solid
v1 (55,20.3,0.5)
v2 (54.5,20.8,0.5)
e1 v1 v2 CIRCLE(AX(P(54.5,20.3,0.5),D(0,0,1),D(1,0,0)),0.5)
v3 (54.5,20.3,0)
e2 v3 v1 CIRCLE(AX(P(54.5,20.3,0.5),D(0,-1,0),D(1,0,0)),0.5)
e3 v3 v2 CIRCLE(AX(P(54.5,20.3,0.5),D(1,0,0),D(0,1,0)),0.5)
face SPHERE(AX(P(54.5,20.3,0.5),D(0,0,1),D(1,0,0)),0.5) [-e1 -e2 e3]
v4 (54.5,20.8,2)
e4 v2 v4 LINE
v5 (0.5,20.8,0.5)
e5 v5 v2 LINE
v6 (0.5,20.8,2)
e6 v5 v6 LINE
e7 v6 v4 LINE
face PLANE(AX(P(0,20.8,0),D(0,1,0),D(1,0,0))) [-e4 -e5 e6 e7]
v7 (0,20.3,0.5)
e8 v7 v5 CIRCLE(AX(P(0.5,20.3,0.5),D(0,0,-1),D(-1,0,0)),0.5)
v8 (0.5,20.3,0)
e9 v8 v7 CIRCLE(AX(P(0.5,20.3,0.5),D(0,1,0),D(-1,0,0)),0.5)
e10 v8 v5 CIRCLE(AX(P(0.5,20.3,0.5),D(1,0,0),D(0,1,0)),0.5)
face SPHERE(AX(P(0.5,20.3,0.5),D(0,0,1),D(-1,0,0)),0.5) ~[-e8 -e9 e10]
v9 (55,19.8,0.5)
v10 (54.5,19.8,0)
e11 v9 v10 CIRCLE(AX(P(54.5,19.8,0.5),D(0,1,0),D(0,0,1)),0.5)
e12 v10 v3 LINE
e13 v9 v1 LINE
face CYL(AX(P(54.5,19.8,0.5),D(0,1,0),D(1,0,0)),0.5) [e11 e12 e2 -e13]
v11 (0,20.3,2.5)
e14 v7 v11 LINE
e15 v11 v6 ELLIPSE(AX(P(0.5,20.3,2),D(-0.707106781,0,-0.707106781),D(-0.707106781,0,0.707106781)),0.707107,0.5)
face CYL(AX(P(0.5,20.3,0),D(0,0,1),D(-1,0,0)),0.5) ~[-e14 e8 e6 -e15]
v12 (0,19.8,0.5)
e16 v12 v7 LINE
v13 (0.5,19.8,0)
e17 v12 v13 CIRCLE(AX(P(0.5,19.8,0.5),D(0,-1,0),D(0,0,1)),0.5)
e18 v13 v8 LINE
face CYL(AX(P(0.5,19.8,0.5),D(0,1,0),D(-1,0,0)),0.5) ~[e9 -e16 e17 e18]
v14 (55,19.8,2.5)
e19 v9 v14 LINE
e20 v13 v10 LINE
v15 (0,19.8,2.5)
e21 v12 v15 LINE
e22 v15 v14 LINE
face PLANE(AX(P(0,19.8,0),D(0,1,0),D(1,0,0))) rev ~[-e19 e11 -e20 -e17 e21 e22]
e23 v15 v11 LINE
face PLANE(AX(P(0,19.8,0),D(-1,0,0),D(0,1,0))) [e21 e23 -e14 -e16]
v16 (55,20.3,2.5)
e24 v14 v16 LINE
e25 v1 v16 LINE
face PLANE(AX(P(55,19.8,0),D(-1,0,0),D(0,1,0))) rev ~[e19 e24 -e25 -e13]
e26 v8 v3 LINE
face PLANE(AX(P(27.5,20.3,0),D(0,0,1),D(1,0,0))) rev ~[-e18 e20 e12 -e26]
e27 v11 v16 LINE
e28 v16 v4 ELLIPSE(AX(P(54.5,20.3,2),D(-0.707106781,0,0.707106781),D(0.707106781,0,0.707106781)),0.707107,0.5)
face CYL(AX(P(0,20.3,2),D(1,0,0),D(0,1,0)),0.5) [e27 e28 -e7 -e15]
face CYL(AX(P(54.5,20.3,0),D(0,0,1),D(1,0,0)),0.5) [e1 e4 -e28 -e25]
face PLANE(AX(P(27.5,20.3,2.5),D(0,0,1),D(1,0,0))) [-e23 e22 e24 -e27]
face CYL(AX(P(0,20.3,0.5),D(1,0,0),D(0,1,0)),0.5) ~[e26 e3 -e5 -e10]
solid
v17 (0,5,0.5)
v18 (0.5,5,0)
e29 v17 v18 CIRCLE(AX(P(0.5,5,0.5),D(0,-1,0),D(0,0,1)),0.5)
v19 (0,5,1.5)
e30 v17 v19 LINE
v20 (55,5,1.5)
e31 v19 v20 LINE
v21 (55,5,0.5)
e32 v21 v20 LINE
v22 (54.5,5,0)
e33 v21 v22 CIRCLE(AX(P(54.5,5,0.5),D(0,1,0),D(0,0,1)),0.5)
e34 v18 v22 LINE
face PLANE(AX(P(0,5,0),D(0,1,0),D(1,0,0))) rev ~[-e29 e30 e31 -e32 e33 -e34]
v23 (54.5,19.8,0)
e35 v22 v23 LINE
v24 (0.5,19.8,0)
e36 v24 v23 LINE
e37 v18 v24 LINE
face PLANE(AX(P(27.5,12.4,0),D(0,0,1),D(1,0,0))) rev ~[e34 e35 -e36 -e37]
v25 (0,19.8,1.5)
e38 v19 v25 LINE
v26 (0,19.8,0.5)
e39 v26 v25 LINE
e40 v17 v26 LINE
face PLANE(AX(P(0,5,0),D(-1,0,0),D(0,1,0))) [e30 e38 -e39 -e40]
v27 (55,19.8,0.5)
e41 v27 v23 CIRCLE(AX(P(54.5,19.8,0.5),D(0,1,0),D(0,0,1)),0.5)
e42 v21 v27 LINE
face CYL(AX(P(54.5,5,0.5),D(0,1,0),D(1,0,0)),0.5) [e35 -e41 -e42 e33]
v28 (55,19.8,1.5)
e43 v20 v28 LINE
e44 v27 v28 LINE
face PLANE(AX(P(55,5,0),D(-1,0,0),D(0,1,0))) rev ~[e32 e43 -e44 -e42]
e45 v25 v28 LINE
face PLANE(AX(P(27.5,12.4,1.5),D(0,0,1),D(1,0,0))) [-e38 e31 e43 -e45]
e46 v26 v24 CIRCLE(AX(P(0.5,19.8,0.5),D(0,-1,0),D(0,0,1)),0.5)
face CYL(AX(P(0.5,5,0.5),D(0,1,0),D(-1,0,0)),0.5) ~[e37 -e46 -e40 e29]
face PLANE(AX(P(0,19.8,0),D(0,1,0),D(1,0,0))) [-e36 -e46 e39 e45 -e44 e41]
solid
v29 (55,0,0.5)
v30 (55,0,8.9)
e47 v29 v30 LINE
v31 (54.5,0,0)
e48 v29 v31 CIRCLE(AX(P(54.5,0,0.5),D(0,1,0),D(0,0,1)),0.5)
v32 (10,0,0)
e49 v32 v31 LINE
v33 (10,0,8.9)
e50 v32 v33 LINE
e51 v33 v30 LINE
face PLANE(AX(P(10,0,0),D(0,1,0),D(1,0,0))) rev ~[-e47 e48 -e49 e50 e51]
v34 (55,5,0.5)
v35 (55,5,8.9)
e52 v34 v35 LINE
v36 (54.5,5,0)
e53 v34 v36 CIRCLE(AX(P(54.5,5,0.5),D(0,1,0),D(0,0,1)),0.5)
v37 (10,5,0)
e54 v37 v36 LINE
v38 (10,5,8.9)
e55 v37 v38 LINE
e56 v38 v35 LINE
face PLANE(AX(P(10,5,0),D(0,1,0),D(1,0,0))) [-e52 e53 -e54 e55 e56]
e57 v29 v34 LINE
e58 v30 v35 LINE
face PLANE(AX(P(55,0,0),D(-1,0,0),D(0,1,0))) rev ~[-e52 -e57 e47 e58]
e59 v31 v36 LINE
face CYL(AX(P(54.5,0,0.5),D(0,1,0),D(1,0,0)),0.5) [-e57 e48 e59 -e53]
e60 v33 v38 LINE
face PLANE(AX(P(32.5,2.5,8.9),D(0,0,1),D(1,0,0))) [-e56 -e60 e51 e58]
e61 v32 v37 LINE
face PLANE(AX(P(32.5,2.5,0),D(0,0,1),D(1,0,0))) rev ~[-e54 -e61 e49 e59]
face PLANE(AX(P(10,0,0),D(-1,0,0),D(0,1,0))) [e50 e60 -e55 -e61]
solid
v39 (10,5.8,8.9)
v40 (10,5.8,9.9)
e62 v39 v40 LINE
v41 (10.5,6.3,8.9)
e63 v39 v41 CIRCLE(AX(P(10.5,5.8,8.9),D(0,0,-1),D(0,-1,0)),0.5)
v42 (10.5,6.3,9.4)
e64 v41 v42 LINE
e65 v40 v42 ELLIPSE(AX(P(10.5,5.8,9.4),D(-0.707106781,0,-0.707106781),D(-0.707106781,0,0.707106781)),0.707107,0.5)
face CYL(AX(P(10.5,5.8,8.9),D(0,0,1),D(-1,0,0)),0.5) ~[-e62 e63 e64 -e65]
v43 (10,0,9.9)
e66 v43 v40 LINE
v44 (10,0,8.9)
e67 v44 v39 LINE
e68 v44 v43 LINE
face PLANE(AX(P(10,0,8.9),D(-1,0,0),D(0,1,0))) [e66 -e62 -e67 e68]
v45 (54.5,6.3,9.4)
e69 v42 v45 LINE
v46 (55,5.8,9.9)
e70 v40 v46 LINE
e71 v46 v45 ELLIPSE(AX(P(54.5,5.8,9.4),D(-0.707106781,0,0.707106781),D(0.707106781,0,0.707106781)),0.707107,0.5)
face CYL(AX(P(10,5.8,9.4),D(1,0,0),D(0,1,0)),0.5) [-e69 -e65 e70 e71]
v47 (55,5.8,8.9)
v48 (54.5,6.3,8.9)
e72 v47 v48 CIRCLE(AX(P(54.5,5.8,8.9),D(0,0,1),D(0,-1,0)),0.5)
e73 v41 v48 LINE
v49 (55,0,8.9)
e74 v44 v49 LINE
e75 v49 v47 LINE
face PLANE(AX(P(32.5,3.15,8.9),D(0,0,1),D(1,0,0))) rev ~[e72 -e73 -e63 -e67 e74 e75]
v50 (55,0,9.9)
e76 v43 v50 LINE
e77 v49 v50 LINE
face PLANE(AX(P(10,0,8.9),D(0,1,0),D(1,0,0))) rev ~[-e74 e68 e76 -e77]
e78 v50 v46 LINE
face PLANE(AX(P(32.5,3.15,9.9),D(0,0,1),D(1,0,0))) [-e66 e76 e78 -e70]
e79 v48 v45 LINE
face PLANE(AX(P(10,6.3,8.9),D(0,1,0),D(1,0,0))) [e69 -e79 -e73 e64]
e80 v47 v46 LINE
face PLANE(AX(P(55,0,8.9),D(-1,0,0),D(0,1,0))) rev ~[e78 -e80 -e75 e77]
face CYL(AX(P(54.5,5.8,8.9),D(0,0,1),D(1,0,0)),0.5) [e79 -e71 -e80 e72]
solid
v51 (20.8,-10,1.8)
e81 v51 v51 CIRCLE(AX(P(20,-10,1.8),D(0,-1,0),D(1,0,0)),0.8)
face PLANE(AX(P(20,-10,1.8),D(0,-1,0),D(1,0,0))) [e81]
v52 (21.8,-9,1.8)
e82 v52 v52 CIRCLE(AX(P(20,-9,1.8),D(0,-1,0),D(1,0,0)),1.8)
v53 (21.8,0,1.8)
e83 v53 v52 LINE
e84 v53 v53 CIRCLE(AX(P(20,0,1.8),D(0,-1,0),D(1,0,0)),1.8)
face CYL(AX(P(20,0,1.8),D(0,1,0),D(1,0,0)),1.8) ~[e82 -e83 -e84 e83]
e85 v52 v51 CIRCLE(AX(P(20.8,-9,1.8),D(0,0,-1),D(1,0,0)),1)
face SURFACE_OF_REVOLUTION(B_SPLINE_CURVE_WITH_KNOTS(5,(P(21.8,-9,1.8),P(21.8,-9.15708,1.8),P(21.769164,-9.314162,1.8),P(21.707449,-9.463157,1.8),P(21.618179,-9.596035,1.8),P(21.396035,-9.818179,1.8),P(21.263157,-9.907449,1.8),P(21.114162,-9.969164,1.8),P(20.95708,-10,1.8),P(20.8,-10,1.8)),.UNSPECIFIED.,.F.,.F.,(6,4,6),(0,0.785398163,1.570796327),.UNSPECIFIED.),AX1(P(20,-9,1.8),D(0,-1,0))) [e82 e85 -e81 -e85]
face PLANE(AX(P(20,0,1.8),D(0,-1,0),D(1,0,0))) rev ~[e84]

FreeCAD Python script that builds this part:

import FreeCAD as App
import Part
import Sketcher
from FreeCAD import Vector


def edges_at(feature, points):
    """Names of the edges that pass closest to the given points."""
    edges = feature.Shape.Edges
    near = lambda p: min(range(len(edges)), key=lambda i: edges[i].distToShape(Part.Vertex(*p))[0])
    return sorted({f"Edge{near(p) + 1}" for p in points})

doc = App.newDocument("Part")
body = doc.addObject("PartDesign::Body", "Body")

# Sketch on XZ plane
sketch1 = body.newObject("Sketcher::SketchObject", "Sketch")
sketch1.AttachmentSupport = (doc.getObject("XZ_Plane"), [""])
sketch1.MapMode = "FlatFace"
sketch1.addGeometry(Part.Circle(Vector(20, 1.8, 0), Vector(0, 0, 1), 1.8), False)
sketch1.addConstraint(Sketcher.Constraint("Diameter", 0, 3.6))
sketch1.addConstraint(Sketcher.Constraint("DistanceX", -1, 1, 0, 3, 20.0))
sketch1.addConstraint(Sketcher.Constraint("DistanceY", -1, 1, 0, 3, 1.8))
pad1 = body.newObject("PartDesign::Pad", "Pad")
pad1.Profile = sketch1
pad1.Length = 10
doc.recompute()

fillet = body.newObject("PartDesign::Fillet", "Fillet")
fillet.Base = (pad1, edges_at(pad1, [(18.2, -10, 1.8)]))
fillet.Radius = 1
body2 = doc.addObject("PartDesign::Body", "Body001")

# Sketch on XY plane
sketch2 = body2.newObject("Sketcher::SketchObject", "Sketch001")
sketch2.AttachmentSupport = (doc.getObject("XY_Plane001"), [""])
sketch2.MapMode = "FlatFace"
sketch2.addGeometry(Part.LineSegment(Vector(0, 20.8, 0), Vector(0, 19.8, 0)), False)
sketch2.addGeometry(Part.LineSegment(Vector(0, 19.8, 0), Vector(55, 19.8, 0)), False)
sketch2.addGeometry(Part.LineSegment(Vector(55, 19.8, 0), Vector(55, 20.8, 0)), False)
sketch2.addGeometry(Part.LineSegment(Vector(55, 20.8, 0), Vector(0, 20.8, 0)), False)
sketch2.addConstraint(Sketcher.Constraint("Coincident", 0, 2, 1, 1))
sketch2.addConstraint(Sketcher.Constraint("Coincident", 1, 2, 2, 1))
sketch2.addConstraint(Sketcher.Constraint("Coincident", 2, 2, 3, 1))
sketch2.addConstraint(Sketcher.Constraint("Coincident", 3, 2, 0, 1))
sketch2.addConstraint(Sketcher.Constraint("Vertical", 0))
sketch2.addConstraint(Sketcher.Constraint("Horizontal", 1))
sketch2.addConstraint(Sketcher.Constraint("Vertical", 2))
sketch2.addConstraint(Sketcher.Constraint("Horizontal", 3))
sketch2.addConstraint(Sketcher.Constraint("PointOnObject", 0, 2, -2))
sketch2.addConstraint(Sketcher.Constraint("DistanceX", 1, 1, 1, 2, 55.0))
sketch2.addConstraint(Sketcher.Constraint("DistanceY", 0, 2, 0, 1, 1.0))
sketch2.addConstraint(Sketcher.Constraint("DistanceY", -1, 1, 0, 2, 19.8))
pad2 = body2.newObject("PartDesign::Pad", "Pad001")
pad2.Profile = sketch2
pad2.Length = 2.5
doc.recompute()

fillet2 = body2.newObject("PartDesign::Fillet", "Fillet001")
fillet2.Base = (pad2, edges_at(pad2, [
    (0, 20.8, 1.25),
    (0, 20.3, 0),
    (55, 20.8, 1.25),
    (55, 20.3, 0),
    (27.5, 20.8, 0),
    (27.5, 20.8, 2.5),
]))
fillet2.Radius = 0.5
body3 = doc.addObject("PartDesign::Body", "Body002")

# Sketch on XY plane
sketch3 = body3.newObject("Sketcher::SketchObject", "Sketch002")
sketch3.AttachmentSupport = (doc.getObject("XY_Plane002"), [""])
sketch3.MapMode = "FlatFace"
sketch3.addGeometry(Part.LineSegment(Vector(0, 20, 0), Vector(0, 5, 0)), False)
sketch3.addGeometry(Part.LineSegment(Vector(0, 5, 0), Vector(55, 5, 0)), False)
sketch3.addGeometry(Part.LineSegment(Vector(55, 5, 0), Vector(55, 20, 0)), False)
sketch3.addGeometry(Part.LineSegment(Vector(55, 20, 0), Vector(0, 20, 0)), False)
sketch3.addConstraint(Sketcher.Constraint("Coincident", 0, 2, 1, 1))
sketch3.addConstraint(Sketcher.Constraint("Coincident", 1, 2, 2, 1))
sketch3.addConstraint(Sketcher.Constraint("Coincident", 2, 2, 3, 1))
sketch3.addConstraint(Sketcher.Constraint("Coincident", 3, 2, 0, 1))
sketch3.addConstraint(Sketcher.Constraint("Vertical", 0))
sketch3.addConstraint(Sketcher.Constraint("Horizontal", 1))
sketch3.addConstraint(Sketcher.Constraint("Vertical", 2))
sketch3.addConstraint(Sketcher.Constraint("Horizontal", 3))
sketch3.addConstraint(Sketcher.Constraint("PointOnObject", 0, 2, -2))
sketch3.addConstraint(Sketcher.Constraint("DistanceX", 1, 1, 1, 2, 55.0))
sketch3.addConstraint(Sketcher.Constraint("DistanceY", 0, 2, 0, 1, 14.8))
sketch3.addConstraint(Sketcher.Constraint("DistanceY", -1, 1, 0, 2, 5.0))
pad3 = body3.newObject("PartDesign::Pad", "Pad002")
pad3.Profile = sketch3
pad3.Length = 1.5
doc.recompute()

fillet3 = body3.newObject("PartDesign::Fillet", "Fillet002")
fillet3.Base = (pad3, edges_at(pad3, [(0, 12.4, 0), (55, 12.4, 0)]))
fillet3.Radius = 0.5
body4 = doc.addObject("PartDesign::Body", "Body003")

# Sketch on XY plane
sketch4 = body4.newObject("Sketcher::SketchObject", "Sketch003")
sketch4.AttachmentSupport = (doc.getObject("XY_Plane003"), [""])
sketch4.MapMode = "FlatFace"
sketch4.addGeometry(Part.LineSegment(Vector(10, 5, 0), Vector(10, 0, 0)), False)
sketch4.addGeometry(Part.LineSegment(Vector(10, 0, 0), Vector(55, 0, 0)), False)
sketch4.addGeometry(Part.LineSegment(Vector(55, 0, 0), Vector(55, 5, 0)), False)
sketch4.addGeometry(Part.LineSegment(Vector(55, 5, 0), Vector(10, 5, 0)), False)
sketch4.addConstraint(Sketcher.Constraint("Coincident", 0, 2, 1, 1))
sketch4.addConstraint(Sketcher.Constraint("Coincident", 1, 2, 2, 1))
sketch4.addConstraint(Sketcher.Constraint("Coincident", 2, 2, 3, 1))
sketch4.addConstraint(Sketcher.Constraint("Coincident", 3, 2, 0, 1))
sketch4.addConstraint(Sketcher.Constraint("Vertical", 0))
sketch4.addConstraint(Sketcher.Constraint("Horizontal", 1))
sketch4.addConstraint(Sketcher.Constraint("Vertical", 2))
sketch4.addConstraint(Sketcher.Constraint("Horizontal", 3))
sketch4.addConstraint(Sketcher.Constraint("PointOnObject", 0, 2, -1))
sketch4.addConstraint(Sketcher.Constraint("DistanceX", 1, 1, 1, 2, 45.0))
sketch4.addConstraint(Sketcher.Constraint("DistanceY", 0, 2, 0, 1, 5.0))
sketch4.addConstraint(Sketcher.Constraint("DistanceX", -1, 1, 0, 2, 10.0))
pad4 = body4.newObject("PartDesign::Pad", "Pad003")
pad4.Profile = sketch4
pad4.Length = 8.9
doc.recompute()

fillet4 = body4.newObject("PartDesign::Fillet", "Fillet003")
fillet4.Base = (pad4, edges_at(pad4, [(55, 2.5, 0)]))
fillet4.Radius = 0.5
body5 = doc.addObject("PartDesign::Body", "Body004")

# Sketch on XY plane
sketch5 = body5.newObject("Sketcher::SketchObject", "Sketch004")
sketch5.AttachmentSupport = (doc.getObject("XY_Plane004"), [""])
sketch5.MapMode = "FlatFace"
sketch5.AttachmentOffset = App.Placement(Vector(0, 0, 8.9), App.Rotation())
sketch5.addGeometry(Part.LineSegment(Vector(10, 6, 0), Vector(10, 0, 0)), False)
sketch5.addGeometry(Part.LineSegment(Vector(10, 0, 0), Vector(55, 0, 0)), False)
sketch5.addGeometry(Part.LineSegment(Vector(55, 0, 0), Vector(55, 6, 0)), False)
sketch5.addGeometry(Part.LineSegment(Vector(55, 6, 0), Vector(10, 6, 0)), False)
sketch5.addConstraint(Sketcher.Constraint("Coincident", 0, 2, 1, 1))
sketch5.addConstraint(Sketcher.Constraint("Coincident", 1, 2, 2, 1))
sketch5.addConstraint(Sketcher.Constraint("Coincident", 2, 2, 3, 1))
sketch5.addConstraint(Sketcher.Constraint("Coincident", 3, 2, 0, 1))
sketch5.addConstraint(Sketcher.Constraint("Vertical", 0))
sketch5.addConstraint(Sketcher.Constraint("Horizontal", 1))
sketch5.addConstraint(Sketcher.Constraint("Vertical", 2))
sketch5.addConstraint(Sketcher.Constraint("Horizontal", 3))
sketch5.addConstraint(Sketcher.Constraint("PointOnObject", 0, 2, -1))
sketch5.addConstraint(Sketcher.Constraint("DistanceX", 1, 1, 1, 2, 45.0))
sketch5.addConstraint(Sketcher.Constraint("DistanceY", 0, 2, 0, 1, 6.3))
sketch5.addConstraint(Sketcher.Constraint("DistanceX", -1, 1, 0, 2, 10.0))
pad5 = body5.newObject("PartDesign::Pad", "Pad004")
pad5.Profile = sketch5
pad5.Length = 1
doc.recompute()

fillet5 = body5.newObject("PartDesign::Fillet", "Fillet004")
fillet5.Base = (pad5, edges_at(pad5, [(10, 6.3, 9.4), (55, 6.3, 9.4), (32.5, 6.3, 9.9)]))
fillet5.Radius = 0.5

doc.recompute()
